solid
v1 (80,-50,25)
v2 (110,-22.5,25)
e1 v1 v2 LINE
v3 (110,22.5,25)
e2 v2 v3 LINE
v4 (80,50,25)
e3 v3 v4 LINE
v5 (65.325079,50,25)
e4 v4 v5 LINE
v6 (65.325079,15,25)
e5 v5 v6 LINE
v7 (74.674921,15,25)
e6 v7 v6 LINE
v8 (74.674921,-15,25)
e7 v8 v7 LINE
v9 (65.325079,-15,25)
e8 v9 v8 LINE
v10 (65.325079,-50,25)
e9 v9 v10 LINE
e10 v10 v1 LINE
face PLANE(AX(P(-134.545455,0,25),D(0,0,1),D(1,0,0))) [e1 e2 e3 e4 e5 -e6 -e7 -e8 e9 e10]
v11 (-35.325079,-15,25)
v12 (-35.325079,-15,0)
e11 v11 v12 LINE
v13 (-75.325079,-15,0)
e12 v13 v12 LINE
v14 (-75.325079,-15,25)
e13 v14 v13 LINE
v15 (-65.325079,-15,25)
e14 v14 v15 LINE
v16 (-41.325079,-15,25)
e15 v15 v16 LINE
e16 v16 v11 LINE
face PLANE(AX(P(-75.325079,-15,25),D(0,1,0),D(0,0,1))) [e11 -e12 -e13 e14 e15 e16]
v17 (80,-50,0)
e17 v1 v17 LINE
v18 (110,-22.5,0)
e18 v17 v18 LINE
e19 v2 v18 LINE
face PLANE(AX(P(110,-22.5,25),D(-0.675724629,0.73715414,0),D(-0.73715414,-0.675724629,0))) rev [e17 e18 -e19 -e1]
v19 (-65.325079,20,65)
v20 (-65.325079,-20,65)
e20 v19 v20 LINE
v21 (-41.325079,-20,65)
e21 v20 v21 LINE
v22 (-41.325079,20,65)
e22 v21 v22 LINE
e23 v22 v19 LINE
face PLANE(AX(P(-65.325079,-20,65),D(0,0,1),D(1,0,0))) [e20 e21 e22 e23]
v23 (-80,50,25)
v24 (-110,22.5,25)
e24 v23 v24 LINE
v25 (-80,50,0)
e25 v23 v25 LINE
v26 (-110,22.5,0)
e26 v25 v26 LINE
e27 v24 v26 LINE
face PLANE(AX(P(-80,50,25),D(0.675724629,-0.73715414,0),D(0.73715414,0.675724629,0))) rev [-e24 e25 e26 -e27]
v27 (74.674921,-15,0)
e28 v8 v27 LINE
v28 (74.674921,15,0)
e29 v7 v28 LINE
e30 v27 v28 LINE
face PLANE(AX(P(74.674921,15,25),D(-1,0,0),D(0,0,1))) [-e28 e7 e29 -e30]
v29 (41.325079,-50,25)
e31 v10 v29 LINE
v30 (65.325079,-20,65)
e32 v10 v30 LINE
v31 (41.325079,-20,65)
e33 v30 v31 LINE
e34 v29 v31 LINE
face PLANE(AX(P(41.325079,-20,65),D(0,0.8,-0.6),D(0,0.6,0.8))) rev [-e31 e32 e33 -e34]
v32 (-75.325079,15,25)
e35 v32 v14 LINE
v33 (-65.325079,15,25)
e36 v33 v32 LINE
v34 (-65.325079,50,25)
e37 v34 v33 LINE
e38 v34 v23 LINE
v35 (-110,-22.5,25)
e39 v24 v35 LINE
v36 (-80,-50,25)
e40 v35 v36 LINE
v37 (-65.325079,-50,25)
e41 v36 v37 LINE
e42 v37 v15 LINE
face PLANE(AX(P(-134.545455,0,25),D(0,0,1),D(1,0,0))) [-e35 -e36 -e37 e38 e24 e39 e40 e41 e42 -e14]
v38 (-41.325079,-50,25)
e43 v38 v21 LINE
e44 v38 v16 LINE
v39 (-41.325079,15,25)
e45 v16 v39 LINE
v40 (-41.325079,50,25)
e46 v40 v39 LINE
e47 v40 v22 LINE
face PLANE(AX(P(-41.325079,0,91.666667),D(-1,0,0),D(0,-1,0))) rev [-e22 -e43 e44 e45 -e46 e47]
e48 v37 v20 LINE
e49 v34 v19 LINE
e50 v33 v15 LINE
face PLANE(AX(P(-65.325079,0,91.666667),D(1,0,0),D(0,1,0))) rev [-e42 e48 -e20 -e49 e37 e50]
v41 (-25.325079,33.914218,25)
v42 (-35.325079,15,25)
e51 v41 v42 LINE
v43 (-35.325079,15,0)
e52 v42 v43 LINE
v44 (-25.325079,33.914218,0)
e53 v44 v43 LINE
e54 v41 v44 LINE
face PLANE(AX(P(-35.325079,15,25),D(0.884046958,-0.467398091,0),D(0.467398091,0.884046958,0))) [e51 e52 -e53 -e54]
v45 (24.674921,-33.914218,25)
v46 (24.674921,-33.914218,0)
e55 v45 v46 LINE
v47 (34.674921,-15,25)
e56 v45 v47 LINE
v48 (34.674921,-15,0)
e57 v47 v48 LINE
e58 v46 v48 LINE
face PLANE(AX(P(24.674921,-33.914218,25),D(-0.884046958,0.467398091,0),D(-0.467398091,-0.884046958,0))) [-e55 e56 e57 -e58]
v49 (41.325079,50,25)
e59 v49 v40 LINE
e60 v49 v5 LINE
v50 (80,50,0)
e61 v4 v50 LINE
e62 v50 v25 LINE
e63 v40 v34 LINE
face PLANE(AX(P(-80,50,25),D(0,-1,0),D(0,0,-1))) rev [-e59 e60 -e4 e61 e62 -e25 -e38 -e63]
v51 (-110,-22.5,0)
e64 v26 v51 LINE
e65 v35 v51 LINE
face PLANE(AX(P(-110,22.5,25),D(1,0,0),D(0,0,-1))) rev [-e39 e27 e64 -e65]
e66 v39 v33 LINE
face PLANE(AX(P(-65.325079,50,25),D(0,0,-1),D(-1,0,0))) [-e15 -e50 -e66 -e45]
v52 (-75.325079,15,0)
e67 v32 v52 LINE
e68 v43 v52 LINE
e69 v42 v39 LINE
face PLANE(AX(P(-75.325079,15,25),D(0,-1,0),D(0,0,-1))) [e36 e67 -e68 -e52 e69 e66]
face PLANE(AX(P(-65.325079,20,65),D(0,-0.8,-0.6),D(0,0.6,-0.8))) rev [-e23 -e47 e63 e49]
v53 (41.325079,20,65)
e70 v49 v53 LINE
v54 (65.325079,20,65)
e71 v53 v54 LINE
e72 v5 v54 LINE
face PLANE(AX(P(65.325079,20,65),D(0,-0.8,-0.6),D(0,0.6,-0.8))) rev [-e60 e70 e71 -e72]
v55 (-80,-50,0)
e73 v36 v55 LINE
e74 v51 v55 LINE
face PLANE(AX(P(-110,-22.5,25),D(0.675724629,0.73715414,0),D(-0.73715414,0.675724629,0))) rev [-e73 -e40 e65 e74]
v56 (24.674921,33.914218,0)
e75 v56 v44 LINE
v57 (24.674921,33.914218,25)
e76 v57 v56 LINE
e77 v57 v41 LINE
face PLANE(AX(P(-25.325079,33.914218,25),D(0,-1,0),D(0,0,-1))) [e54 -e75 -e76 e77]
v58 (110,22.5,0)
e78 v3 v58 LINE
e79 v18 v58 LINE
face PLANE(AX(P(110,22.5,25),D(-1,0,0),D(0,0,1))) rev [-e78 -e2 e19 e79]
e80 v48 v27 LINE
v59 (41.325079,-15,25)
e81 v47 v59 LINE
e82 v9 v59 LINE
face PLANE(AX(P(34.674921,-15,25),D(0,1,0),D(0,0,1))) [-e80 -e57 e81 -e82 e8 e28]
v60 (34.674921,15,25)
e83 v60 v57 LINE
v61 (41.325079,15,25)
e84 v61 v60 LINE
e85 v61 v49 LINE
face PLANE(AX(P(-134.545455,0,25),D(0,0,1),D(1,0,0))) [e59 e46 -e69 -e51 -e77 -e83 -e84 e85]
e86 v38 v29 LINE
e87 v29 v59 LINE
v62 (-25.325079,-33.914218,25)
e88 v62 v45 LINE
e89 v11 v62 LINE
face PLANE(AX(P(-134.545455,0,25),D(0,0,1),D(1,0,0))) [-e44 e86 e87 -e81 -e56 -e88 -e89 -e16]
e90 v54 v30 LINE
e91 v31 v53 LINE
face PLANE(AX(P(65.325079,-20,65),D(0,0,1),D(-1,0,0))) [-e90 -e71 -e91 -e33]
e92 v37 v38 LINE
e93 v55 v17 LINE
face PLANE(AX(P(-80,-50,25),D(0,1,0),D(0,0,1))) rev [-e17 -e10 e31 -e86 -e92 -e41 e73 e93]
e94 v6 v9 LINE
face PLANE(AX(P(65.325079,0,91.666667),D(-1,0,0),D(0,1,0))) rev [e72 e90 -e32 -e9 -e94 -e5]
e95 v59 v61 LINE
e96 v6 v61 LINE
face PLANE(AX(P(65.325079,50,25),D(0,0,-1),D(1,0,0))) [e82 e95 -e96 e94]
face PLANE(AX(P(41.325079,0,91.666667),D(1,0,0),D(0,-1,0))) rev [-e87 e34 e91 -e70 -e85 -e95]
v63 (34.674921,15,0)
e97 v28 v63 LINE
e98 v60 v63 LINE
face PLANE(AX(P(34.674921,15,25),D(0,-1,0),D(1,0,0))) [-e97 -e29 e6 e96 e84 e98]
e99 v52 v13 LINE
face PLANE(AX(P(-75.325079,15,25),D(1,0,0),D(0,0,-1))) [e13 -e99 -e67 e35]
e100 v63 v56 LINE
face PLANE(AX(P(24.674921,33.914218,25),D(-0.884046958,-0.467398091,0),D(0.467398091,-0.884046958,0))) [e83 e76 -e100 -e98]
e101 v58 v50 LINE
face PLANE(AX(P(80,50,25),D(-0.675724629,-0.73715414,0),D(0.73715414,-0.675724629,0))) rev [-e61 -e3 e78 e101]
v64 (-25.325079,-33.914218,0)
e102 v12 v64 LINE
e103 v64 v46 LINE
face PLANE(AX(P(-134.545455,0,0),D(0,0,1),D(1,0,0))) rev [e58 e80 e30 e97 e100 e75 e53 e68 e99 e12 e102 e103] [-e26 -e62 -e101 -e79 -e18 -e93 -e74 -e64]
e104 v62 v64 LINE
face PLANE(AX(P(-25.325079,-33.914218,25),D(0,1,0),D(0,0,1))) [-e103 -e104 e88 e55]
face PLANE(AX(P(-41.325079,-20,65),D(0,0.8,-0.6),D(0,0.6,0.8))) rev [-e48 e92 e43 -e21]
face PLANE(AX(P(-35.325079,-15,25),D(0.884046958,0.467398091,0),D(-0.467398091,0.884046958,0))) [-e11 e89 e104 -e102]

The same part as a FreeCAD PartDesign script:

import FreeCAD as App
import Part
import Sketcher

V = App.Vector

doc = App.newDocument("Part")
body = doc.addObject("PartDesign::Body", "Body")

sketch1 = doc.addObject("Sketcher::SketchObject", "Sketch")
body.addObject(sketch1)
sketch1.AttachmentSupport = (doc.XY_Plane, [""])
sketch1.MapMode = "FlatFace"
sketch1.addGeometry([
    Part.LineSegment(V(110, -22, 0), V(110, 22, 0)),
    Part.LineSegment(V(110, 22, 0), V(80, 50, 0)),
    Part.LineSegment(V(80, 50, 0), V(-80, 50, 0)),
    Part.LineSegment(V(-80, 50, 0), V(-110, 22, 0)),
    Part.LineSegment(V(-110, 22, 0), V(-110, -22, 0)),
    Part.LineSegment(V(-110, -22, 0), V(-80, -50, 0)),
    Part.LineSegment(V(-80, -50, 0), V(80, -50, 0)),
    Part.LineSegment(V(80, -50, 0), V(110, -22, 0)),
    Part.LineSegment(V(-75, 15, 0), V(-35, 15, 0)),
    Part.LineSegment(V(-35, 15, 0), V(-25, 34, 0)),
    Part.LineSegment(V(-25, 34, 0), V(25, 34, 0)),
    Part.LineSegment(V(25, 34, 0), V(35, 15, 0)),
    Part.LineSegment(V(35, 15, 0), V(75, 15, 0)),
    Part.LineSegment(V(75, 15, 0), V(75, -15, 0)),
    Part.LineSegment(V(75, -15, 0), V(35, -15, 0)),
    Part.LineSegment(V(35, -15, 0), V(25, -34, 0)),
    Part.LineSegment(V(25, -34, 0), V(-25, -34, 0)),
    Part.LineSegment(V(-25, -34, 0), V(-35, -15, 0)),
    Part.LineSegment(V(-35, -15, 0), V(-75, -15, 0)),
    Part.LineSegment(V(-75, -15, 0), V(-75, 15, 0)),
], False)
sketch1.addConstraint([
    Sketcher.Constraint("Coincident", 0, 2, 1, 1),
    Sketcher.Constraint("Coincident", 1, 2, 2, 1),
    Sketcher.Constraint("Coincident", 2, 2, 3, 1),
    Sketcher.Constraint("Coincident", 3, 2, 4, 1),
    Sketcher.Constraint("Coincident", 4, 2, 5, 1),
    Sketcher.Constraint("Coincident", 5, 2, 6, 1),
    Sketcher.Constraint("Coincident", 6, 2, 7, 1),
    Sketcher.Constraint("Coincident", 7, 2, 0, 1),
    Sketcher.Constraint("Coincident", 8, 2, 9, 1),
    Sketcher.Constraint("Coincident", 9, 2, 10, 1),
    Sketcher.Constraint("Coincident", 10, 2, 11, 1),
    Sketcher.Constraint("Coincident", 11, 2, 12, 1),
    Sketcher.Constraint("Coincident", 12, 2, 13, 1),
    Sketcher.Constraint("Coincident", 13, 2, 14, 1),
    Sketcher.Constraint("Coincident", 14, 2, 15, 1),
    Sketcher.Constraint("Coincident", 15, 2, 16, 1),
    Sketcher.Constraint("Coincident", 16, 2, 17, 1),
    Sketcher.Constraint("Coincident", 17, 2, 18, 1),
    Sketcher.Constraint("Coincident", 18, 2, 19, 1),
    Sketcher.Constraint("Coincident", 19, 2, 8, 1),
    Sketcher.Constraint("Vertical", 0),
    Sketcher.Constraint("Horizontal", 2),
    Sketcher.Constraint("Vertical", 4),
    Sketcher.Constraint("Horizontal", 6),
    Sketcher.Constraint("Horizontal", 8),
    Sketcher.Constraint("Horizontal", 10),
    Sketcher.Constraint("Horizontal", 12),
    Sketcher.Constraint("Vertical", 13),
    Sketcher.Constraint("Horizontal", 14),
    Sketcher.Constraint("Horizontal", 16),
    Sketcher.Constraint("Horizontal", 18),
    Sketcher.Constraint("Vertical", 19),
    Sketcher.Constraint("Symmetric", 0, 2, 4, 2, -1, 1),
    Sketcher.Constraint("Symmetric", 1, 2, 5, 2, -1, 1),
    Sketcher.Constraint("Symmetric", 11, 2, 14, 2, -1),
    Sketcher.Constraint("Symmetric", 10, 2, 15, 2, -1),
    Sketcher.Constraint("Symmetric", 8, 2, 17, 2, -1),
    Sketcher.Constraint("Parallel", 3, 7),
    Sketcher.Constraint("Parallel", 9, 15),
    Sketcher.Constraint("Parallel", 11, 17),
    Sketcher.Constraint("Horizontal", 0, 2, 3, 2),
    Sketcher.Constraint("Horizontal", 4, 2, 7, 2),
    Sketcher.Constraint("Horizontal", 8, 2, 11, 2),
    Sketcher.Constraint("Vertical", 2, 2, 5, 2),
    Sketcher.Constraint("Equal", 8, 12),
    Sketcher.Constraint("DistanceX", 2, 2, 2, 1, 160.0),
    Sketcher.Constraint("DistanceX", 8, 1, 8, 2, 40.0),
    Sketcher.Constraint("DistanceX", 10, 1, 10, 2, 50.0),
    Sketcher.Constraint("DistanceY", 0, 1, 0, 2, 45.0),
    Sketcher.Constraint("DistanceY", 13, 2, 13, 1, 30.0),
    Sketcher.Constraint("DistanceX", -1, 1, 0, 2, 110.0),
    Sketcher.Constraint("DistanceY", -1, 1, 1, 2, 50.0),
    Sketcher.Constraint("DistanceX", 8, 2, 9, 2, 10.0),
    Sketcher.Constraint("Distance", 9, 21.395038),
    Sketcher.Constraint("DistanceX", 8, 2, -1, 1, 35.325079),
])
pad1 = doc.addObject("PartDesign::Pad", "Pad")
body.addObject(pad1)
pad1.Profile = sketch1
pad1.Length = 25

sketch2 = doc.addObject("Sketcher::SketchObject", "Sketch001")
body.addObject(sketch2)
sketch2.AttachmentSupport = (doc.XY_Plane, [""])
sketch2.MapMode = "FlatFace"
sketch2.AttachmentOffset = App.Placement(V(0, 0, 25), App.Rotation())
sketch2.addGeometry([
    Part.LineSegment(V(-65, -50, 0), V(-41, -50, 0)),
    Part.LineSegment(V(-41, -50, 0), V(-41, 50, 0)),
    Part.LineSegment(V(-41, 50, 0), V(-65, 50, 0)),
    Part.LineSegment(V(-65, 50, 0), V(-65, -50, 0)),
], False)
sketch2.addConstraint([
    Sketcher.Constraint("Coincident", 0, 2, 1, 1),
    Sketcher.Constraint("Coincident", 1, 2, 2, 1),
    Sketcher.Constraint("Coincident", 2, 2, 3, 1),
    Sketcher.Constraint("Coincident", 3, 2, 0, 1),
    Sketcher.Constraint("Horizontal", 0),
    Sketcher.Constraint("Vertical", 1),
    Sketcher.Constraint("Horizontal", 2),
    Sketcher.Constraint("Vertical", 3),
    Sketcher.Constraint("DistanceX", 0, 1, 0, 2, 24.0),
    Sketcher.Constraint("DistanceY", 1, 1, 1, 2, 100.0),
    Sketcher.Constraint("DistanceY", 0, 2, -1, 1, 50.0),
    Sketcher.Constraint("DistanceX", 0, 2, -1, 1, 41.325079),
])

sketch3 = doc.addObject("Sketcher::SketchObject", "Sketch002")
body.addObject(sketch3)
sketch3.AttachmentSupport = (doc.XY_Plane, [""])
sketch3.MapMode = "FlatFace"
sketch3.AttachmentOffset = App.Placement(V(0, 0, 65), App.Rotation())
sketch3.addGeometry([
    Part.LineSegment(V(-41, 20, 0), V(-65, 20, 0)),
    Part.LineSegment(V(-65, 20, 0), V(-65, -20, 0)),
    Part.LineSegment(V(-65, -20, 0), V(-41, -20, 0)),
    Part.LineSegment(V(-41, -20, 0), V(-41, 20, 0)),
], False)
sketch3.addConstraint([
    Sketcher.Constraint("Coincident", 0, 2, 1, 1),
    Sketcher.Constraint("Coincident", 1, 2, 2, 1),
    Sketcher.Constraint("Coincident", 2, 2, 3, 1),
    Sketcher.Constraint("Coincident", 3, 2, 0, 1),
    Sketcher.Constraint("Horizontal", 0),
    Sketcher.Constraint("Vertical", 1),
    Sketcher.Constraint("Horizontal", 2),
    Sketcher.Constraint("Vertical", 3),
    Sketcher.Constraint("DistanceX", 0, 2, 0, 1, 24.0),
    Sketcher.Constraint("DistanceY", 1, 2, 1, 1, 40.0),
    Sketcher.Constraint("DistanceY", -1, 1, 0, 2, 20.0),
    Sketcher.Constraint("DistanceX", 0, 2, -1, 1, 65.325079),
])

additiveloft = doc.addObject("PartDesign::AdditiveLoft", "AdditiveLoft")
body.addObject(additiveloft)
additiveloft.Profile = sketch2
additiveloft.Sections = [sketch3]
doc.recompute()

mirrored = doc.addObject("PartDesign::Mirrored", "Mirrored")
body.addObject(mirrored)
mirrored.Originals = [additiveloft]
mirrored.MirrorPlane = (doc.YZ_Plane, [""])
body.Tip = mirrored

doc.recompute()
